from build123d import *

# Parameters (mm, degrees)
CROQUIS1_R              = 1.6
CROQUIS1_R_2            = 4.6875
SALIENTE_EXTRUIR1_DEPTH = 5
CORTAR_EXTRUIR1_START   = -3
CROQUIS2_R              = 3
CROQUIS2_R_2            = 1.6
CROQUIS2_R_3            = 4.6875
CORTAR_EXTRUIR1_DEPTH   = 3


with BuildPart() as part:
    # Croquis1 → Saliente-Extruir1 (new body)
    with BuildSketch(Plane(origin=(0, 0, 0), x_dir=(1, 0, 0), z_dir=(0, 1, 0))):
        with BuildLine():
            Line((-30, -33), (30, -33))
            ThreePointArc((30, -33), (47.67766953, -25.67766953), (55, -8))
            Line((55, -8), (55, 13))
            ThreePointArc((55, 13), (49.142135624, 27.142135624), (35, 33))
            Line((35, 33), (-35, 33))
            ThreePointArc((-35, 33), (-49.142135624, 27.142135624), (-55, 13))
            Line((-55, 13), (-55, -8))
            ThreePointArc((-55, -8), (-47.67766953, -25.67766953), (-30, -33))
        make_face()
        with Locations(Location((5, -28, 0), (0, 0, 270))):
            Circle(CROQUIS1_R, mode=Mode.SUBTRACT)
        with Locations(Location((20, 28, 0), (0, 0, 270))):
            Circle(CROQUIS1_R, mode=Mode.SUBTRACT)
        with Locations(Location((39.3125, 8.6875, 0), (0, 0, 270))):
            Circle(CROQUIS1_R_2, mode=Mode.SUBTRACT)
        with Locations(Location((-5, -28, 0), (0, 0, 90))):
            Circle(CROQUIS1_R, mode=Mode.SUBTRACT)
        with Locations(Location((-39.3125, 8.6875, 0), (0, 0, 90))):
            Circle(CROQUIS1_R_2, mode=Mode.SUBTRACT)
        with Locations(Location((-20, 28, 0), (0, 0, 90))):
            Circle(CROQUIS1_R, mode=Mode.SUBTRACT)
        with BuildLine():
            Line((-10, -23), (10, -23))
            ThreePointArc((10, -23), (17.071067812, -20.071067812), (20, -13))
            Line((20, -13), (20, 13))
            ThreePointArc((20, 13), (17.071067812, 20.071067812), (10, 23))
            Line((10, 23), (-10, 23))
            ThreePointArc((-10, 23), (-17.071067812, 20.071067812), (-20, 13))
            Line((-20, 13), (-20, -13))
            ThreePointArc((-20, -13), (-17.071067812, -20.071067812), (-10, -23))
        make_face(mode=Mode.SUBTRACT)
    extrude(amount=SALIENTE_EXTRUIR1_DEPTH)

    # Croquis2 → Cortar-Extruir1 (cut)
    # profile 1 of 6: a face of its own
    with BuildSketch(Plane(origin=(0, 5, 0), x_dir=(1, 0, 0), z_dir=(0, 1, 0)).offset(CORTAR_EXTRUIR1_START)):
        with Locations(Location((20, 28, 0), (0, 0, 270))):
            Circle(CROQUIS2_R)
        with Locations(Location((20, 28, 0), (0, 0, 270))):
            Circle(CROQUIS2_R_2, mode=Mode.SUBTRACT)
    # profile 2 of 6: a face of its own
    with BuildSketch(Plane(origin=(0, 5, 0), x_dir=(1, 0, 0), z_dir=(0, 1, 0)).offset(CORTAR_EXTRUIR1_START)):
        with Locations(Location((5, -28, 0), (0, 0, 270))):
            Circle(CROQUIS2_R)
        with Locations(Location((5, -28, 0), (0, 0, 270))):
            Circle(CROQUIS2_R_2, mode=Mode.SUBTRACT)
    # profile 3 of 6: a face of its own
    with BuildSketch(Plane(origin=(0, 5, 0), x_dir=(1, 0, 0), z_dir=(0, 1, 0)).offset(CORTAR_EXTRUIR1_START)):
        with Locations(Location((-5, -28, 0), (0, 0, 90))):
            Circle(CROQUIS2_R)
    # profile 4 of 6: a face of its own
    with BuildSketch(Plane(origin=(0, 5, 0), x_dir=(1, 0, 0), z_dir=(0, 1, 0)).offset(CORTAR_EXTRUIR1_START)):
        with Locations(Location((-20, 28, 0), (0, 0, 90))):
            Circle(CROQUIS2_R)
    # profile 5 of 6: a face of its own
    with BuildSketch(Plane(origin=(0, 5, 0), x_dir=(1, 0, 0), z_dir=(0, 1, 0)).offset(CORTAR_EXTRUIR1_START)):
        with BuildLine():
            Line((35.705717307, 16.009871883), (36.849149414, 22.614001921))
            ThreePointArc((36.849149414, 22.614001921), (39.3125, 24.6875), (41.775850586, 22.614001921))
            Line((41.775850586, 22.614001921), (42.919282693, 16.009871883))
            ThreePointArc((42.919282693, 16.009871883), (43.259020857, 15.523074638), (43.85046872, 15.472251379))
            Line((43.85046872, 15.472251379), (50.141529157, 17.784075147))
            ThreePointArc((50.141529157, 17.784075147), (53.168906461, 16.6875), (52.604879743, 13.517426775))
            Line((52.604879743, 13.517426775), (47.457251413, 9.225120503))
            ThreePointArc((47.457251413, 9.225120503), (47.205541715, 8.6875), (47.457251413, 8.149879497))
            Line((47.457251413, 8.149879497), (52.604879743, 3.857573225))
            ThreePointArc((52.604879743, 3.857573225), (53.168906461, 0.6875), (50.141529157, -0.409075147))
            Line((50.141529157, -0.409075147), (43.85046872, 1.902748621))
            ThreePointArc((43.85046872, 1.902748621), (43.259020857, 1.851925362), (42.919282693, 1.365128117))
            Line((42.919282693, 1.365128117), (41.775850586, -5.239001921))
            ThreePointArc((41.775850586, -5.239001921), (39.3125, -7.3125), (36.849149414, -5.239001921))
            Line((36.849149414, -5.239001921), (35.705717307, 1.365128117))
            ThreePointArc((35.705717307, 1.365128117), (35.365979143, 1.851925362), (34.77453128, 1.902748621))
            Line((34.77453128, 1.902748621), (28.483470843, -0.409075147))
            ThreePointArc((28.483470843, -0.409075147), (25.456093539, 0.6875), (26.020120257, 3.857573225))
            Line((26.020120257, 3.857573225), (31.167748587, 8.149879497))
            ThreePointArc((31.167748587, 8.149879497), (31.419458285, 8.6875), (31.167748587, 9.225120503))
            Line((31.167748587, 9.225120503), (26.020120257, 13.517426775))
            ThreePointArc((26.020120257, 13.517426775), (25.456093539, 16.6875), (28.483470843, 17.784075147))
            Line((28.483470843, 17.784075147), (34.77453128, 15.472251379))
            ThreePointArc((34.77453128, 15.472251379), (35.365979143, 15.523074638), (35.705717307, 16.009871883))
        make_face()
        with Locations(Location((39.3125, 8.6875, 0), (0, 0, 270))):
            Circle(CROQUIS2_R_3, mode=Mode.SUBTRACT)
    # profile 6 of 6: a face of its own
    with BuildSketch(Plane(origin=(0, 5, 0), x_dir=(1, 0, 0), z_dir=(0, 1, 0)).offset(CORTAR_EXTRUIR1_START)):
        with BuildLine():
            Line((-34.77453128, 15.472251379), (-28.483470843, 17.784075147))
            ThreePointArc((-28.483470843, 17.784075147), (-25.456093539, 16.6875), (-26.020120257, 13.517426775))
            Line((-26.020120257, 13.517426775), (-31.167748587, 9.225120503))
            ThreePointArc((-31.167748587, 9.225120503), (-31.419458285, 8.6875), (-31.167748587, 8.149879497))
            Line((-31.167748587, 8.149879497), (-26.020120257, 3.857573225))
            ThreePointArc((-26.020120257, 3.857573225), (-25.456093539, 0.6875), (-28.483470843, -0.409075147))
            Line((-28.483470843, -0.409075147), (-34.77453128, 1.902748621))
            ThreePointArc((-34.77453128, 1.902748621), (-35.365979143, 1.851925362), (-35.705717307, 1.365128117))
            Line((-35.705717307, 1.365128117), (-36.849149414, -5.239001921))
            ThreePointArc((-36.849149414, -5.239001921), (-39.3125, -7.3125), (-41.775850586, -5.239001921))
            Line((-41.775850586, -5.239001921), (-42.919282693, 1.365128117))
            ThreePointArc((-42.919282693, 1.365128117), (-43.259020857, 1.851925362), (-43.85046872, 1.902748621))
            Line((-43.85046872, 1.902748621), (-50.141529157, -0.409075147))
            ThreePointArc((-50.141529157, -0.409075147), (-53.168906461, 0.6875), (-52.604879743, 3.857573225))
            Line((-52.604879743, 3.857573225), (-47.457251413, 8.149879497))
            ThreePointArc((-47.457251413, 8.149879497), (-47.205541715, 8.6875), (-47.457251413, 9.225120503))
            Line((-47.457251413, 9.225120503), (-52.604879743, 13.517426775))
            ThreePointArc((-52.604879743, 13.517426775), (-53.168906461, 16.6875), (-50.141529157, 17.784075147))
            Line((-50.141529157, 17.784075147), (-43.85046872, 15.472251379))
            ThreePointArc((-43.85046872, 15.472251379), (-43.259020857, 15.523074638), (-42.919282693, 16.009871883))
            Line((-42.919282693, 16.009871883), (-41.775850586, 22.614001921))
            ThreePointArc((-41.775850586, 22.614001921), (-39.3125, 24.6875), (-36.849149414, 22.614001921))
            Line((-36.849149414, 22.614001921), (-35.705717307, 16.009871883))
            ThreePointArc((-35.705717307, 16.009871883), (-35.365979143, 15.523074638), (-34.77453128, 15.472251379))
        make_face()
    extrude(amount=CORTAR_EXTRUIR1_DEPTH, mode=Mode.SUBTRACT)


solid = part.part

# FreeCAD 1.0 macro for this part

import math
import FreeCAD as App
import Part
import Sketcher
from FreeCAD import Vector
Q = App.Units.Quantity

doc = App.newDocument("Part")
params = doc.addObject("Spreadsheet::Sheet", "Params")
for row, (alias, value) in enumerate([
    ("sketch1_radius", "25 mm"),
    ("sketch1_radius2", "20 mm"),
    ("sketch1_radius3", "10 mm"),
    ("sketch1_diameter", "3.2 mm"),
    ("sketch1_width", "60 mm"),
    ("pad1_length", "5 mm"),
    ("sketch2_diameter", "6 mm"),
    ("sketch2_diameter2", "3.2 mm"),
    ("sketch2_radius", "0.7 mm"),
    ("sketch2_radius2", "2.5 mm"),
    ("pocket1_length", "3 mm"),
], start=1):
    params.set(f"A{row}", alias)
    params.set(f"B{row}", "=" + value)
    params.setAlias(f"B{row}", alias)

body = doc.addObject("PartDesign::Body", "Body")

sketch1 = doc.addObject("Sketcher::SketchObject", "Sketch")
body.addObject(sketch1)
sketch1.AttachmentSupport = (doc.XZ_Plane, [""])
sketch1.MapMode = "FlatFace"
sketch1.addGeometry([
    Part.LineSegment(Vector(-30, 33, 0), Vector(30, 33, 0)),
    Part.ArcOfCircle(Part.Circle(Vector(30, 8, 0), Vector(0, 0, 1), 25), math.radians(0), math.radians(90)),
    Part.LineSegment(Vector(55, 8, 0), Vector(55, -13, 0)),
    Part.ArcOfCircle(Part.Circle(Vector(35, -13, 0), Vector(0, 0, 1), 20), math.radians(-90), math.radians(0)),
    Part.LineSegment(Vector(35, -33, 0), Vector(-35, -33, 0)),
    Part.ArcOfCircle(Part.Circle(Vector(-35, -13, 0), Vector(0, 0, 1), 20), math.radians(180), math.radians(270)),
    Part.LineSegment(Vector(-55, -13, 0), Vector(-55, 8, 0)),
    Part.ArcOfCircle(Part.Circle(Vector(-30, 8, 0), Vector(0, 0, 1), 25), math.radians(90), math.radians(180)),
    Part.Circle(Vector(-5, 28, 0), Vector(0, 0, 1), 1.6),
    Part.Circle(Vector(5, 28, 0), Vector(0, 0, 1), 1.6),
    Part.LineSegment(Vector(10, 23, 0), Vector(-10, 23, 0)),
    Part.ArcOfCircle(Part.Circle(Vector(-10, 13, 0), Vector(0, 0, 1), 10), math.radians(90), math.radians(180)),
    Part.LineSegment(Vector(-20, 13, 0), Vector(-20, -13, 0)),
    Part.ArcOfCircle(Part.Circle(Vector(-10, -13, 0), Vector(0, 0, 1), 10), math.radians(180), math.radians(270)),
    Part.LineSegment(Vector(-10, -23, 0), Vector(10, -23, 0)),
    Part.ArcOfCircle(Part.Circle(Vector(10, -13, 0), Vector(0, 0, 1), 10), math.radians(-90), math.radians(0)),
    Part.LineSegment(Vector(20, -13, 0), Vector(20, 13, 0)),
    Part.ArcOfCircle(Part.Circle(Vector(10, 13, 0), Vector(0, 0, 1), 10), math.radians(0), math.radians(90)),
    Part.Circle(Vector(-39.3, -8.7, 0), Vector(0, 0, 1), 4.7),
    Part.Circle(Vector(-20, -28, 0), Vector(0, 0, 1), 1.6),
    Part.Circle(Vector(39.3, -8.7, 0), Vector(0, 0, 1), 4.7),
    Part.Circle(Vector(20, -28, 0), Vector(0, 0, 1), 1.6),
], False)
sketch1.addConstraint([
    Sketcher.Constraint("Tangent", 0, 2, 1, 2),
    Sketcher.Constraint("Tangent", 1, 1, 2, 1),
    Sketcher.Constraint("Tangent", 2, 2, 3, 2),
    Sketcher.Constraint("Tangent", 3, 1, 4, 1),
    Sketcher.Constraint("Tangent", 4, 2, 5, 2),
    Sketcher.Constraint("Tangent", 5, 1, 6, 1),
    Sketcher.Constraint("Tangent", 6, 2, 7, 2),
    Sketcher.Constraint("Tangent", 7, 1, 0, 1),
    Sketcher.Constraint("Tangent", 10, 2, 11, 1),
    Sketcher.Constraint("Tangent", 11, 2, 12, 1),
    Sketcher.Constraint("Tangent", 12, 2, 13, 1),
    Sketcher.Constraint("Tangent", 13, 2, 14, 1),
    Sketcher.Constraint("Tangent", 14, 2, 15, 1),
    Sketcher.Constraint("Tangent", 15, 2, 16, 1),
    Sketcher.Constraint("Tangent", 16, 2, 17, 1),
    Sketcher.Constraint("Tangent", 17, 2, 10, 1),
    Sketcher.Constraint("Horizontal", 0),
    Sketcher.Constraint("Vertical", 2),
    Sketcher.Constraint("Horizontal", 4),
    Sketcher.Constraint("Vertical", 6),
    Sketcher.Constraint("Horizontal", 10),
    Sketcher.Constraint("Vertical", 12),
    Sketcher.Constraint("Horizontal", 14),
    Sketcher.Constraint("Vertical", 16),
    Sketcher.Constraint("Equal", 3, 5),
    Sketcher.Constraint("Equal", 1, 7),
    Sketcher.Constraint("Equal", 8, 9),
    Sketcher.Constraint("Equal", 11, 13),
    Sketcher.Constraint("Equal", 13, 15),
    Sketcher.Constraint("Equal", 15, 17),
    Sketcher.Constraint("Equal", 9, 19),
    Sketcher.Constraint("Equal", 18, 20),
    Sketcher.Constraint("Equal", 19, 21),
    Sketcher.Constraint("Symmetric", 11, 3, 15, 3, -1, 1),
    Sketcher.Constraint("Symmetric", 8, 3, 9, 3, -2),
    Sketcher.Constraint("Symmetric", 18, 3, 20, 3, -2),
    Sketcher.Constraint("Symmetric", 19, 3, 21, 3, -2),
    Sketcher.Constraint("Horizontal", 5, 3, 13, 3),
    Sketcher.Constraint("Vertical", 19, 3, 11, 2),
    Sketcher.Constraint("Radius", 1, Q("25 mm")),
    Sketcher.Constraint("Radius", 3, Q("20 mm")),
    Sketcher.Constraint("Radius", 11, Q("10 mm")),
    Sketcher.Constraint("Diameter", 8, Q("3.2 mm")),
    Sketcher.Constraint("DistanceX", 0, 1, 0, 2, Q("60 mm")),
    Sketcher.Constraint("DistanceX", 10, 2, 10, 1, Q("20 mm")),
    Sketcher.Constraint("DistanceY", 2, 2, 2, 1, Q("21 mm")),
    Sketcher.Constraint("DistanceY", 12, 2, 12, 1, Q("26 mm")),
    Sketcher.Constraint("Diameter", 18, Q("9.375 mm")),
    Sketcher.Constraint("DistanceX", -1, 1, 1, 3, Q("30 mm")),
    Sketcher.Constraint("DistanceX", 8, 3, -1, 1, Q("5 mm")),
    Sketcher.Constraint("DistanceY", -1, 1, 8, 3, Q("28 mm")),
    Sketcher.Constraint("DistanceY", 19, 3, -1, 1, Q("28 mm")),
    Sketcher.Constraint("DistanceX", 18, 3, -1, 1, Q("39.3125 mm")),
    Sketcher.Constraint("DistanceY", 18, 3, -1, 1, Q("8.6875 mm")),
])
sketch1.setExpression("Constraints[39]", "Params.sketch1_radius")
sketch1.setExpression("Constraints[40]", "Params.sketch1_radius2")
sketch1.setExpression("Constraints[41]", "Params.sketch1_radius3")
sketch1.setExpression("Constraints[42]", "Params.sketch1_diameter")
sketch1.setExpression("Constraints[43]", "Params.sketch1_width")
pad1 = doc.addObject("PartDesign::Pad", "Pad")
body.addObject(pad1)
pad1.Profile = sketch1
pad1.setExpression("Length", "Params.pad1_length")
pad1.Reversed = True

sketch2 = doc.addObject("Sketcher::SketchObject", "Sketch001")
body.addObject(sketch2)
sketch2.AttachmentSupport = (doc.XZ_Plane, [""])
sketch2.MapMode = "FlatFace"
sketch2.AttachmentOffset = App.Placement(Vector(0, 0, -2), App.Rotation())
sketch2.addGeometry([
    Part.Circle(Vector(20, -28, 0), Vector(0, 0, 1), 3),
    Part.Circle(Vector(20, -28, 0), Vector(0, 0, 1), 1.6),
    Part.Circle(Vector(5, 28, 0), Vector(0, 0, 1), 3),
    Part.Circle(Vector(5, 28, 0), Vector(0, 0, 1), 1.6),
    Part.Circle(Vector(-5, 28, 0), Vector(0, 0, 1), 3),
    Part.Circle(Vector(-20, -28, 0), Vector(0, 0, 1), 3),
    Part.LineSegment(Vector(36.8, -22.6, 0), Vector(35.7, -16, 0)),
    Part.ArcOfCircle(Part.Circle(Vector(35, -16.1, 0), Vector(0, 0, 1), 0.7), math.radians(10), math.radians(110)),
    Part.LineSegment(Vector(34.8, -15.5, 0), Vector(28.5, -17.8, 0)),
    Part.ArcOfCircle(Part.Circle(Vector(27.6, -15.4, 0), Vector(0, 0, 1), 2.5), math.radians(130), math.radians(290)),
    Part.LineSegment(Vector(26, -13.5, 0), Vector(31.2, -9.2, 0)),
    Part.ArcOfCircle(Part.Circle(Vector(30.7, -8.7, 0), Vector(0, 0, 1), 0.7), math.radians(-50), math.radians(50)),
    Part.LineSegment(Vector(31.2, -8.1, 0), Vector(26, -3.9, 0)),
    Part.ArcOfCircle(Part.Circle(Vector(27.6, -1.9, 0), Vector(0, 0, 1), 2.5), math.radians(70), math.radians(230)),
    Part.LineSegment(Vector(28.5, 0.4, 0), Vector(34.8, -1.9, 0)),
    Part.ArcOfCircle(Part.Circle(Vector(35, -1.2, 0), Vector(0, 0, 1), 0.7), math.radians(-110), math.radians(-10)),
    Part.LineSegment(Vector(35.7, -1.4, 0), Vector(36.8, 5.2, 0)),
    Part.ArcOfCircle(Part.Circle(Vector(39.3, 4.8, 0), Vector(0, 0, 1), 2.5), math.radians(10), math.radians(170)),
    Part.LineSegment(Vector(41.8, 5.2, 0), Vector(42.9, -1.4, 0)),
    Part.ArcOfCircle(Part.Circle(Vector(43.6, -1.2, 0), Vector(0, 0, 1), 0.7), math.radians(-170), math.radians(-70)),
    Part.LineSegment(Vector(43.9, -1.9, 0), Vector(50.1, 0.4, 0)),
    Part.ArcOfCircle(Part.Circle(Vector(51, -1.9, 0), Vector(0, 0, 1), 2.5), math.radians(-50), math.radians(110)),
    Part.LineSegment(Vector(52.6, -3.9, 0), Vector(47.5, -8.1, 0)),
    Part.ArcOfCircle(Part.Circle(Vector(47.9, -8.7, 0), Vector(0, 0, 1), 0.7), math.radians(130), math.radians(230)),
    Part.LineSegment(Vector(47.5, -9.2, 0), Vector(52.6, -13.5, 0)),
    Part.ArcOfCircle(Part.Circle(Vector(51, -15.4, 0), Vector(0, 0, 1), 2.5), math.radians(-110), math.radians(50)),
    Part.LineSegment(Vector(50.1, -17.8, 0), Vector(43.9, -15.5, 0)),
    Part.ArcOfCircle(Part.Circle(Vector(43.6, -16.1, 0), Vector(0, 0, 1), 0.7), math.radians(70), math.radians(170)),
    Part.LineSegment(Vector(42.9, -16, 0), Vector(41.8, -22.6, 0)),
    Part.ArcOfCircle(Part.Circle(Vector(39.3, -22.2, 0), Vector(0, 0, 1), 2.5), math.radians(-170), math.radians(-10)),
    Part.Circle(Vector(39.3, -8.7, 0), Vector(0, 0, 1), 4.7),
    Part.LineSegment(Vector(-28.5, -17.8, 0), Vector(-34.8, -15.5, 0)),
    Part.ArcOfCircle(Part.Circle(Vector(-35, -16.1, 0), Vector(0, 0, 1), 0.7), math.radians(70), math.radians(170)),
    Part.LineSegment(Vector(-35.7, -16, 0), Vector(-36.8, -22.6, 0)),
    Part.ArcOfCircle(Part.Circle(Vector(-39.3, -22.2, 0), Vector(0, 0, 1), 2.5), math.radians(-170), math.radians(-10)),
    Part.LineSegment(Vector(-41.8, -22.6, 0), Vector(-42.9, -16, 0)),
    Part.ArcOfCircle(Part.Circle(Vector(-43.6, -16.1, 0), Vector(0, 0, 1), 0.7), math.radians(10), math.radians(110)),
    Part.LineSegment(Vector(-43.9, -15.5, 0), Vector(-50.1, -17.8, 0)),
    Part.ArcOfCircle(Part.Circle(Vector(-51, -15.4, 0), Vector(0, 0, 1), 2.5), math.radians(130), math.radians(290)),
    Part.LineSegment(Vector(-52.6, -13.5, 0), Vector(-47.5, -9.2, 0)),
    Part.ArcOfCircle(Part.Circle(Vector(-47.9, -8.7, 0), Vector(0, 0, 1), 0.7), math.radians(-50), math.radians(50)),
    Part.LineSegment(Vector(-47.5, -8.1, 0), Vector(-52.6, -3.9, 0)),
    Part.ArcOfCircle(Part.Circle(Vector(-51, -1.9, 0), Vector(0, 0, 1), 2.5), math.radians(70), math.radians(230)),
    Part.LineSegment(Vector(-50.1, 0.4, 0), Vector(-43.9, -1.9, 0)),
    Part.ArcOfCircle(Part.Circle(Vector(-43.6, -1.2, 0), Vector(0, 0, 1), 0.7), math.radians(-110), math.radians(-10)),
    Part.LineSegment(Vector(-42.9, -1.4, 0), Vector(-41.8, 5.2, 0)),
    Part.ArcOfCircle(Part.Circle(Vector(-39.3, 4.8, 0), Vector(0, 0, 1), 2.5), math.radians(10), math.radians(170)),
    Part.LineSegment(Vector(-36.8, 5.2, 0), Vector(-35.7, -1.4, 0)),
    Part.ArcOfCircle(Part.Circle(Vector(-35, -1.2, 0), Vector(0, 0, 1), 0.7), math.radians(-170), math.radians(-70)),
    Part.LineSegment(Vector(-34.8, -1.9, 0), Vector(-28.5, 0.4, 0)),
    Part.ArcOfCircle(Part.Circle(Vector(-27.6, -1.9, 0), Vector(0, 0, 1), 2.5), math.radians(-50), math.radians(110)),
    Part.LineSegment(Vector(-26, -3.9, 0), Vector(-31.2, -8.1, 0)),
    Part.ArcOfCircle(Part.Circle(Vector(-30.7, -8.7, 0), Vector(0, 0, 1), 0.7), math.radians(130), math.radians(230)),
    Part.LineSegment(Vector(-31.2, -9.2, 0), Vector(-26, -13.5, 0)),
    Part.ArcOfCircle(Part.Circle(Vector(-27.6, -15.4, 0), Vector(0, 0, 1), 2.5), math.radians(-110), math.radians(50)),
], False)
sketch2.addConstraint([
    Sketcher.Constraint("Tangent", 6, 2, 7, 1),
    Sketcher.Constraint("Tangent", 7, 2, 8, 1),
    Sketcher.Constraint("Tangent", 8, 2, 9, 2),
    Sketcher.Constraint("Tangent", 9, 1, 10, 1),
    Sketcher.Constraint("Tangent", 10, 2, 11, 1),
    Sketcher.Constraint("Tangent", 11, 2, 12, 1),
    Sketcher.Constraint("Tangent", 12, 2, 13, 2),
    Sketcher.Constraint("Tangent", 13, 1, 14, 1),
    Sketcher.Constraint("Tangent", 14, 2, 15, 1),
    Sketcher.Constraint("Tangent", 15, 2, 16, 1),
    Sketcher.Constraint("Tangent", 16, 2, 17, 2),
    Sketcher.Constraint("Tangent", 17, 1, 18, 1),
    Sketcher.Constraint("Tangent", 18, 2, 19, 1),
    Sketcher.Constraint("Tangent", 19, 2, 20, 1),
    Sketcher.Constraint("Tangent", 20, 2, 21, 2),
    Sketcher.Constraint("Tangent", 21, 1, 22, 1),
    Sketcher.Constraint("Tangent", 22, 2, 23, 1),
    Sketcher.Constraint("Tangent", 23, 2, 24, 1),
    Sketcher.Constraint("Tangent", 24, 2, 25, 2),
    Sketcher.Constraint("Tangent", 25, 1, 26, 1),
    Sketcher.Constraint("Tangent", 26, 2, 27, 1),
    Sketcher.Constraint("Tangent", 27, 2, 28, 1),
    Sketcher.Constraint("Tangent", 28, 2, 29, 2),
    Sketcher.Constraint("Tangent", 29, 1, 6, 1),
    Sketcher.Constraint("Tangent", 31, 2, 32, 1),
    Sketcher.Constraint("Tangent", 32, 2, 33, 1),
    Sketcher.Constraint("Tangent", 33, 2, 34, 2),
    Sketcher.Constraint("Tangent", 34, 1, 35, 1),
    Sketcher.Constraint("Tangent", 35, 2, 36, 1),
    Sketcher.Constraint("Tangent", 36, 2, 37, 1),
    Sketcher.Constraint("Tangent", 37, 2, 38, 2),
    Sketcher.Constraint("Tangent", 38, 1, 39, 1),
    Sketcher.Constraint("Tangent", 39, 2, 40, 1),
    Sketcher.Constraint("Tangent", 40, 2, 41, 1),
    Sketcher.Constraint("Tangent", 41, 2, 42, 2),
    Sketcher.Constraint("Tangent", 42, 1, 43, 1),
    Sketcher.Constraint("Tangent", 43, 2, 44, 1),
    Sketcher.Constraint("Tangent", 44, 2, 45, 1),
    Sketcher.Constraint("Tangent", 45, 2, 46, 2),
    Sketcher.Constraint("Tangent", 46, 1, 47, 1),
    Sketcher.Constraint("Tangent", 47, 2, 48, 1),
    Sketcher.Constraint("Tangent", 48, 2, 49, 1),
    Sketcher.Constraint("Tangent", 49, 2, 50, 2),
    Sketcher.Constraint("Tangent", 50, 1, 51, 1),
    Sketcher.Constraint("Tangent", 51, 2, 52, 1),
    Sketcher.Constraint("Tangent", 52, 2, 53, 1),
    Sketcher.Constraint("Tangent", 53, 2, 54, 2),
    Sketcher.Constraint("Tangent", 54, 1, 31, 1),
    Sketcher.Constraint("Coincident", 1, 3, 0, 3),
    Sketcher.Constraint("Coincident", 3, 3, 2, 3),
    Sketcher.Constraint("Equal", 0, 2),
    Sketcher.Constraint("Equal", 1, 3),
    Sketcher.Constraint("Equal", 2, 4),
    Sketcher.Constraint("Equal", 4, 5),
    Sketcher.Constraint("Equal", 7, 11),
    Sketcher.Constraint("Equal", 9, 13),
    Sketcher.Constraint("Equal", 11, 15),
    Sketcher.Constraint("Equal", 13, 17),
    Sketcher.Constraint("Equal", 15, 19),
    Sketcher.Constraint("Equal", 17, 21),
    Sketcher.Constraint("Equal", 19, 23),
    Sketcher.Constraint("Equal", 21, 25),
    Sketcher.Constraint("Equal", 23, 27),
    Sketcher.Constraint("Equal", 25, 29),
    Sketcher.Constraint("Equal", 27, 32),
    Sketcher.Constraint("Equal", 29, 34),
    Sketcher.Constraint("Equal", 32, 36),
    Sketcher.Constraint("Equal", 34, 38),
    Sketcher.Constraint("Equal", 36, 40),
    Sketcher.Constraint("Equal", 38, 42),
    Sketcher.Constraint("Equal", 40, 44),
    Sketcher.Constraint("Equal", 42, 46),
    Sketcher.Constraint("Equal", 44, 48),
    Sketcher.Constraint("Equal", 46, 50),
    Sketcher.Constraint("Equal", 48, 52),
    Sketcher.Constraint("Equal", 50, 54),
    Sketcher.Constraint("Symmetric", 2, 3, 4, 3, -2),
    Sketcher.Constraint("Symmetric", 0, 3, 5, 3, -2),
    Sketcher.Constraint("Symmetric", 7, 3, 32, 3, -2),
    Sketcher.Constraint("Symmetric", 29, 3, 34, 3, -2),
    Sketcher.Constraint("Symmetric", 27, 3, 36, 3, -2),
    Sketcher.Constraint("Symmetric", 25, 3, 38, 3, -2),
    Sketcher.Constraint("Symmetric", 23, 3, 40, 3, -2),
    Sketcher.Constraint("Symmetric", 21, 3, 42, 3, -2),
    Sketcher.Constraint("Symmetric", 19, 3, 44, 3, -2),
    Sketcher.Constraint("Symmetric", 17, 3, 46, 3, -2),
    Sketcher.Constraint("Symmetric", 15, 3, 48, 3, -2),
    Sketcher.Constraint("Symmetric", 13, 3, 50, 3, -2),
    Sketcher.Constraint("Symmetric", 11, 3, 52, 3, -2),
    Sketcher.Constraint("Symmetric", 9, 3, 54, 3, -2),
    Sketcher.Constraint("Parallel", 6, 18),
    Sketcher.Constraint("Parallel", 8, 20),
    Sketcher.Constraint("Parallel", 10, 22),
    Sketcher.Constraint("Parallel", 12, 24),
    Sketcher.Constraint("Parallel", 14, 26),
    Sketcher.Constraint("Parallel", 16, 28),
    Sketcher.Constraint("Parallel", 26, 31),
    Sketcher.Constraint("Parallel", 28, 33),
    Sketcher.Constraint("Parallel", 22, 39),
    Sketcher.Constraint("Horizontal", 15, 3, 19, 3),
    Sketcher.Constraint("Horizontal", 13, 3, 21, 3),
    Sketcher.Constraint("Horizontal", 11, 3, 23, 3),
    Sketcher.Constraint("Horizontal", 9, 3, 25, 3),
    Sketcher.Constraint("Horizontal", 7, 3, 27, 3),
    Sketcher.Constraint("Horizontal", 23, 3, 30, 3),
    Sketcher.Constraint("Vertical", 9, 3, 13, 3),
    Sketcher.Constraint("Vertical", 7, 3, 15, 3),
    Sketcher.Constraint("Vertical", 29, 3, 30, 3),
    Sketcher.Constraint("Equal", 6, 8),
    Sketcher.Constraint("Equal", 8, 10),
    Sketcher.Constraint("Diameter", 0, Q("6 mm")),
    Sketcher.Constraint("Diameter", 1, Q("3.2 mm")),
    Sketcher.Constraint("Radius", 7, Q("0.7 mm")),
    Sketcher.Constraint("Radius", 9, Q("2.5 mm")),
    Sketcher.Constraint("Diameter", 30, Q("9.375 mm")),
    Sketcher.Constraint("DistanceX", -1, 1, 0, 3, Q("20 mm")),
    Sketcher.Constraint("DistanceY", 0, 3, -1, 1, Q("28 mm")),
    Sketcher.Constraint("DistanceX", -1, 1, 2, 3, Q("5 mm")),
    Sketcher.Constraint("DistanceY", -1, 1, 2, 3, Q("28 mm")),
    Sketcher.Constraint("DistanceY", -1, 1, 16, 2, Q("5.239002 mm")),
    Sketcher.Constraint("DistanceY", 28, 2, -1, 1, Q("22.614002 mm")),
    Sketcher.Constraint("DistanceY", 9, 3, -1, 1, Q("15.4375 mm")),
    Sketcher.Constraint("DistanceX", -1, 1, 17, 3, Q("39.3125 mm")),
    Sketcher.Constraint("DistanceY", -1, 1, 17, 3, Q("4.8125 mm")),
    Sketcher.Constraint("DistanceX", -1, 1, 7, 3, Q("35.015979 mm")),
])
sketch2.setExpression("Constraints[110]", "Params.sketch2_diameter")
sketch2.setExpression("Constraints[111]", "Params.sketch2_diameter2")
sketch2.setExpression("Constraints[112]", "Params.sketch2_radius")
sketch2.setExpression("Constraints[113]", "Params.sketch2_radius2")
pocket1 = doc.addObject("PartDesign::Pocket", "Pocket")
body.addObject(pocket1)
pocket1.Profile = sketch2
pocket1.setExpression("Length", "Params.pocket1_length")

doc.recompute()
